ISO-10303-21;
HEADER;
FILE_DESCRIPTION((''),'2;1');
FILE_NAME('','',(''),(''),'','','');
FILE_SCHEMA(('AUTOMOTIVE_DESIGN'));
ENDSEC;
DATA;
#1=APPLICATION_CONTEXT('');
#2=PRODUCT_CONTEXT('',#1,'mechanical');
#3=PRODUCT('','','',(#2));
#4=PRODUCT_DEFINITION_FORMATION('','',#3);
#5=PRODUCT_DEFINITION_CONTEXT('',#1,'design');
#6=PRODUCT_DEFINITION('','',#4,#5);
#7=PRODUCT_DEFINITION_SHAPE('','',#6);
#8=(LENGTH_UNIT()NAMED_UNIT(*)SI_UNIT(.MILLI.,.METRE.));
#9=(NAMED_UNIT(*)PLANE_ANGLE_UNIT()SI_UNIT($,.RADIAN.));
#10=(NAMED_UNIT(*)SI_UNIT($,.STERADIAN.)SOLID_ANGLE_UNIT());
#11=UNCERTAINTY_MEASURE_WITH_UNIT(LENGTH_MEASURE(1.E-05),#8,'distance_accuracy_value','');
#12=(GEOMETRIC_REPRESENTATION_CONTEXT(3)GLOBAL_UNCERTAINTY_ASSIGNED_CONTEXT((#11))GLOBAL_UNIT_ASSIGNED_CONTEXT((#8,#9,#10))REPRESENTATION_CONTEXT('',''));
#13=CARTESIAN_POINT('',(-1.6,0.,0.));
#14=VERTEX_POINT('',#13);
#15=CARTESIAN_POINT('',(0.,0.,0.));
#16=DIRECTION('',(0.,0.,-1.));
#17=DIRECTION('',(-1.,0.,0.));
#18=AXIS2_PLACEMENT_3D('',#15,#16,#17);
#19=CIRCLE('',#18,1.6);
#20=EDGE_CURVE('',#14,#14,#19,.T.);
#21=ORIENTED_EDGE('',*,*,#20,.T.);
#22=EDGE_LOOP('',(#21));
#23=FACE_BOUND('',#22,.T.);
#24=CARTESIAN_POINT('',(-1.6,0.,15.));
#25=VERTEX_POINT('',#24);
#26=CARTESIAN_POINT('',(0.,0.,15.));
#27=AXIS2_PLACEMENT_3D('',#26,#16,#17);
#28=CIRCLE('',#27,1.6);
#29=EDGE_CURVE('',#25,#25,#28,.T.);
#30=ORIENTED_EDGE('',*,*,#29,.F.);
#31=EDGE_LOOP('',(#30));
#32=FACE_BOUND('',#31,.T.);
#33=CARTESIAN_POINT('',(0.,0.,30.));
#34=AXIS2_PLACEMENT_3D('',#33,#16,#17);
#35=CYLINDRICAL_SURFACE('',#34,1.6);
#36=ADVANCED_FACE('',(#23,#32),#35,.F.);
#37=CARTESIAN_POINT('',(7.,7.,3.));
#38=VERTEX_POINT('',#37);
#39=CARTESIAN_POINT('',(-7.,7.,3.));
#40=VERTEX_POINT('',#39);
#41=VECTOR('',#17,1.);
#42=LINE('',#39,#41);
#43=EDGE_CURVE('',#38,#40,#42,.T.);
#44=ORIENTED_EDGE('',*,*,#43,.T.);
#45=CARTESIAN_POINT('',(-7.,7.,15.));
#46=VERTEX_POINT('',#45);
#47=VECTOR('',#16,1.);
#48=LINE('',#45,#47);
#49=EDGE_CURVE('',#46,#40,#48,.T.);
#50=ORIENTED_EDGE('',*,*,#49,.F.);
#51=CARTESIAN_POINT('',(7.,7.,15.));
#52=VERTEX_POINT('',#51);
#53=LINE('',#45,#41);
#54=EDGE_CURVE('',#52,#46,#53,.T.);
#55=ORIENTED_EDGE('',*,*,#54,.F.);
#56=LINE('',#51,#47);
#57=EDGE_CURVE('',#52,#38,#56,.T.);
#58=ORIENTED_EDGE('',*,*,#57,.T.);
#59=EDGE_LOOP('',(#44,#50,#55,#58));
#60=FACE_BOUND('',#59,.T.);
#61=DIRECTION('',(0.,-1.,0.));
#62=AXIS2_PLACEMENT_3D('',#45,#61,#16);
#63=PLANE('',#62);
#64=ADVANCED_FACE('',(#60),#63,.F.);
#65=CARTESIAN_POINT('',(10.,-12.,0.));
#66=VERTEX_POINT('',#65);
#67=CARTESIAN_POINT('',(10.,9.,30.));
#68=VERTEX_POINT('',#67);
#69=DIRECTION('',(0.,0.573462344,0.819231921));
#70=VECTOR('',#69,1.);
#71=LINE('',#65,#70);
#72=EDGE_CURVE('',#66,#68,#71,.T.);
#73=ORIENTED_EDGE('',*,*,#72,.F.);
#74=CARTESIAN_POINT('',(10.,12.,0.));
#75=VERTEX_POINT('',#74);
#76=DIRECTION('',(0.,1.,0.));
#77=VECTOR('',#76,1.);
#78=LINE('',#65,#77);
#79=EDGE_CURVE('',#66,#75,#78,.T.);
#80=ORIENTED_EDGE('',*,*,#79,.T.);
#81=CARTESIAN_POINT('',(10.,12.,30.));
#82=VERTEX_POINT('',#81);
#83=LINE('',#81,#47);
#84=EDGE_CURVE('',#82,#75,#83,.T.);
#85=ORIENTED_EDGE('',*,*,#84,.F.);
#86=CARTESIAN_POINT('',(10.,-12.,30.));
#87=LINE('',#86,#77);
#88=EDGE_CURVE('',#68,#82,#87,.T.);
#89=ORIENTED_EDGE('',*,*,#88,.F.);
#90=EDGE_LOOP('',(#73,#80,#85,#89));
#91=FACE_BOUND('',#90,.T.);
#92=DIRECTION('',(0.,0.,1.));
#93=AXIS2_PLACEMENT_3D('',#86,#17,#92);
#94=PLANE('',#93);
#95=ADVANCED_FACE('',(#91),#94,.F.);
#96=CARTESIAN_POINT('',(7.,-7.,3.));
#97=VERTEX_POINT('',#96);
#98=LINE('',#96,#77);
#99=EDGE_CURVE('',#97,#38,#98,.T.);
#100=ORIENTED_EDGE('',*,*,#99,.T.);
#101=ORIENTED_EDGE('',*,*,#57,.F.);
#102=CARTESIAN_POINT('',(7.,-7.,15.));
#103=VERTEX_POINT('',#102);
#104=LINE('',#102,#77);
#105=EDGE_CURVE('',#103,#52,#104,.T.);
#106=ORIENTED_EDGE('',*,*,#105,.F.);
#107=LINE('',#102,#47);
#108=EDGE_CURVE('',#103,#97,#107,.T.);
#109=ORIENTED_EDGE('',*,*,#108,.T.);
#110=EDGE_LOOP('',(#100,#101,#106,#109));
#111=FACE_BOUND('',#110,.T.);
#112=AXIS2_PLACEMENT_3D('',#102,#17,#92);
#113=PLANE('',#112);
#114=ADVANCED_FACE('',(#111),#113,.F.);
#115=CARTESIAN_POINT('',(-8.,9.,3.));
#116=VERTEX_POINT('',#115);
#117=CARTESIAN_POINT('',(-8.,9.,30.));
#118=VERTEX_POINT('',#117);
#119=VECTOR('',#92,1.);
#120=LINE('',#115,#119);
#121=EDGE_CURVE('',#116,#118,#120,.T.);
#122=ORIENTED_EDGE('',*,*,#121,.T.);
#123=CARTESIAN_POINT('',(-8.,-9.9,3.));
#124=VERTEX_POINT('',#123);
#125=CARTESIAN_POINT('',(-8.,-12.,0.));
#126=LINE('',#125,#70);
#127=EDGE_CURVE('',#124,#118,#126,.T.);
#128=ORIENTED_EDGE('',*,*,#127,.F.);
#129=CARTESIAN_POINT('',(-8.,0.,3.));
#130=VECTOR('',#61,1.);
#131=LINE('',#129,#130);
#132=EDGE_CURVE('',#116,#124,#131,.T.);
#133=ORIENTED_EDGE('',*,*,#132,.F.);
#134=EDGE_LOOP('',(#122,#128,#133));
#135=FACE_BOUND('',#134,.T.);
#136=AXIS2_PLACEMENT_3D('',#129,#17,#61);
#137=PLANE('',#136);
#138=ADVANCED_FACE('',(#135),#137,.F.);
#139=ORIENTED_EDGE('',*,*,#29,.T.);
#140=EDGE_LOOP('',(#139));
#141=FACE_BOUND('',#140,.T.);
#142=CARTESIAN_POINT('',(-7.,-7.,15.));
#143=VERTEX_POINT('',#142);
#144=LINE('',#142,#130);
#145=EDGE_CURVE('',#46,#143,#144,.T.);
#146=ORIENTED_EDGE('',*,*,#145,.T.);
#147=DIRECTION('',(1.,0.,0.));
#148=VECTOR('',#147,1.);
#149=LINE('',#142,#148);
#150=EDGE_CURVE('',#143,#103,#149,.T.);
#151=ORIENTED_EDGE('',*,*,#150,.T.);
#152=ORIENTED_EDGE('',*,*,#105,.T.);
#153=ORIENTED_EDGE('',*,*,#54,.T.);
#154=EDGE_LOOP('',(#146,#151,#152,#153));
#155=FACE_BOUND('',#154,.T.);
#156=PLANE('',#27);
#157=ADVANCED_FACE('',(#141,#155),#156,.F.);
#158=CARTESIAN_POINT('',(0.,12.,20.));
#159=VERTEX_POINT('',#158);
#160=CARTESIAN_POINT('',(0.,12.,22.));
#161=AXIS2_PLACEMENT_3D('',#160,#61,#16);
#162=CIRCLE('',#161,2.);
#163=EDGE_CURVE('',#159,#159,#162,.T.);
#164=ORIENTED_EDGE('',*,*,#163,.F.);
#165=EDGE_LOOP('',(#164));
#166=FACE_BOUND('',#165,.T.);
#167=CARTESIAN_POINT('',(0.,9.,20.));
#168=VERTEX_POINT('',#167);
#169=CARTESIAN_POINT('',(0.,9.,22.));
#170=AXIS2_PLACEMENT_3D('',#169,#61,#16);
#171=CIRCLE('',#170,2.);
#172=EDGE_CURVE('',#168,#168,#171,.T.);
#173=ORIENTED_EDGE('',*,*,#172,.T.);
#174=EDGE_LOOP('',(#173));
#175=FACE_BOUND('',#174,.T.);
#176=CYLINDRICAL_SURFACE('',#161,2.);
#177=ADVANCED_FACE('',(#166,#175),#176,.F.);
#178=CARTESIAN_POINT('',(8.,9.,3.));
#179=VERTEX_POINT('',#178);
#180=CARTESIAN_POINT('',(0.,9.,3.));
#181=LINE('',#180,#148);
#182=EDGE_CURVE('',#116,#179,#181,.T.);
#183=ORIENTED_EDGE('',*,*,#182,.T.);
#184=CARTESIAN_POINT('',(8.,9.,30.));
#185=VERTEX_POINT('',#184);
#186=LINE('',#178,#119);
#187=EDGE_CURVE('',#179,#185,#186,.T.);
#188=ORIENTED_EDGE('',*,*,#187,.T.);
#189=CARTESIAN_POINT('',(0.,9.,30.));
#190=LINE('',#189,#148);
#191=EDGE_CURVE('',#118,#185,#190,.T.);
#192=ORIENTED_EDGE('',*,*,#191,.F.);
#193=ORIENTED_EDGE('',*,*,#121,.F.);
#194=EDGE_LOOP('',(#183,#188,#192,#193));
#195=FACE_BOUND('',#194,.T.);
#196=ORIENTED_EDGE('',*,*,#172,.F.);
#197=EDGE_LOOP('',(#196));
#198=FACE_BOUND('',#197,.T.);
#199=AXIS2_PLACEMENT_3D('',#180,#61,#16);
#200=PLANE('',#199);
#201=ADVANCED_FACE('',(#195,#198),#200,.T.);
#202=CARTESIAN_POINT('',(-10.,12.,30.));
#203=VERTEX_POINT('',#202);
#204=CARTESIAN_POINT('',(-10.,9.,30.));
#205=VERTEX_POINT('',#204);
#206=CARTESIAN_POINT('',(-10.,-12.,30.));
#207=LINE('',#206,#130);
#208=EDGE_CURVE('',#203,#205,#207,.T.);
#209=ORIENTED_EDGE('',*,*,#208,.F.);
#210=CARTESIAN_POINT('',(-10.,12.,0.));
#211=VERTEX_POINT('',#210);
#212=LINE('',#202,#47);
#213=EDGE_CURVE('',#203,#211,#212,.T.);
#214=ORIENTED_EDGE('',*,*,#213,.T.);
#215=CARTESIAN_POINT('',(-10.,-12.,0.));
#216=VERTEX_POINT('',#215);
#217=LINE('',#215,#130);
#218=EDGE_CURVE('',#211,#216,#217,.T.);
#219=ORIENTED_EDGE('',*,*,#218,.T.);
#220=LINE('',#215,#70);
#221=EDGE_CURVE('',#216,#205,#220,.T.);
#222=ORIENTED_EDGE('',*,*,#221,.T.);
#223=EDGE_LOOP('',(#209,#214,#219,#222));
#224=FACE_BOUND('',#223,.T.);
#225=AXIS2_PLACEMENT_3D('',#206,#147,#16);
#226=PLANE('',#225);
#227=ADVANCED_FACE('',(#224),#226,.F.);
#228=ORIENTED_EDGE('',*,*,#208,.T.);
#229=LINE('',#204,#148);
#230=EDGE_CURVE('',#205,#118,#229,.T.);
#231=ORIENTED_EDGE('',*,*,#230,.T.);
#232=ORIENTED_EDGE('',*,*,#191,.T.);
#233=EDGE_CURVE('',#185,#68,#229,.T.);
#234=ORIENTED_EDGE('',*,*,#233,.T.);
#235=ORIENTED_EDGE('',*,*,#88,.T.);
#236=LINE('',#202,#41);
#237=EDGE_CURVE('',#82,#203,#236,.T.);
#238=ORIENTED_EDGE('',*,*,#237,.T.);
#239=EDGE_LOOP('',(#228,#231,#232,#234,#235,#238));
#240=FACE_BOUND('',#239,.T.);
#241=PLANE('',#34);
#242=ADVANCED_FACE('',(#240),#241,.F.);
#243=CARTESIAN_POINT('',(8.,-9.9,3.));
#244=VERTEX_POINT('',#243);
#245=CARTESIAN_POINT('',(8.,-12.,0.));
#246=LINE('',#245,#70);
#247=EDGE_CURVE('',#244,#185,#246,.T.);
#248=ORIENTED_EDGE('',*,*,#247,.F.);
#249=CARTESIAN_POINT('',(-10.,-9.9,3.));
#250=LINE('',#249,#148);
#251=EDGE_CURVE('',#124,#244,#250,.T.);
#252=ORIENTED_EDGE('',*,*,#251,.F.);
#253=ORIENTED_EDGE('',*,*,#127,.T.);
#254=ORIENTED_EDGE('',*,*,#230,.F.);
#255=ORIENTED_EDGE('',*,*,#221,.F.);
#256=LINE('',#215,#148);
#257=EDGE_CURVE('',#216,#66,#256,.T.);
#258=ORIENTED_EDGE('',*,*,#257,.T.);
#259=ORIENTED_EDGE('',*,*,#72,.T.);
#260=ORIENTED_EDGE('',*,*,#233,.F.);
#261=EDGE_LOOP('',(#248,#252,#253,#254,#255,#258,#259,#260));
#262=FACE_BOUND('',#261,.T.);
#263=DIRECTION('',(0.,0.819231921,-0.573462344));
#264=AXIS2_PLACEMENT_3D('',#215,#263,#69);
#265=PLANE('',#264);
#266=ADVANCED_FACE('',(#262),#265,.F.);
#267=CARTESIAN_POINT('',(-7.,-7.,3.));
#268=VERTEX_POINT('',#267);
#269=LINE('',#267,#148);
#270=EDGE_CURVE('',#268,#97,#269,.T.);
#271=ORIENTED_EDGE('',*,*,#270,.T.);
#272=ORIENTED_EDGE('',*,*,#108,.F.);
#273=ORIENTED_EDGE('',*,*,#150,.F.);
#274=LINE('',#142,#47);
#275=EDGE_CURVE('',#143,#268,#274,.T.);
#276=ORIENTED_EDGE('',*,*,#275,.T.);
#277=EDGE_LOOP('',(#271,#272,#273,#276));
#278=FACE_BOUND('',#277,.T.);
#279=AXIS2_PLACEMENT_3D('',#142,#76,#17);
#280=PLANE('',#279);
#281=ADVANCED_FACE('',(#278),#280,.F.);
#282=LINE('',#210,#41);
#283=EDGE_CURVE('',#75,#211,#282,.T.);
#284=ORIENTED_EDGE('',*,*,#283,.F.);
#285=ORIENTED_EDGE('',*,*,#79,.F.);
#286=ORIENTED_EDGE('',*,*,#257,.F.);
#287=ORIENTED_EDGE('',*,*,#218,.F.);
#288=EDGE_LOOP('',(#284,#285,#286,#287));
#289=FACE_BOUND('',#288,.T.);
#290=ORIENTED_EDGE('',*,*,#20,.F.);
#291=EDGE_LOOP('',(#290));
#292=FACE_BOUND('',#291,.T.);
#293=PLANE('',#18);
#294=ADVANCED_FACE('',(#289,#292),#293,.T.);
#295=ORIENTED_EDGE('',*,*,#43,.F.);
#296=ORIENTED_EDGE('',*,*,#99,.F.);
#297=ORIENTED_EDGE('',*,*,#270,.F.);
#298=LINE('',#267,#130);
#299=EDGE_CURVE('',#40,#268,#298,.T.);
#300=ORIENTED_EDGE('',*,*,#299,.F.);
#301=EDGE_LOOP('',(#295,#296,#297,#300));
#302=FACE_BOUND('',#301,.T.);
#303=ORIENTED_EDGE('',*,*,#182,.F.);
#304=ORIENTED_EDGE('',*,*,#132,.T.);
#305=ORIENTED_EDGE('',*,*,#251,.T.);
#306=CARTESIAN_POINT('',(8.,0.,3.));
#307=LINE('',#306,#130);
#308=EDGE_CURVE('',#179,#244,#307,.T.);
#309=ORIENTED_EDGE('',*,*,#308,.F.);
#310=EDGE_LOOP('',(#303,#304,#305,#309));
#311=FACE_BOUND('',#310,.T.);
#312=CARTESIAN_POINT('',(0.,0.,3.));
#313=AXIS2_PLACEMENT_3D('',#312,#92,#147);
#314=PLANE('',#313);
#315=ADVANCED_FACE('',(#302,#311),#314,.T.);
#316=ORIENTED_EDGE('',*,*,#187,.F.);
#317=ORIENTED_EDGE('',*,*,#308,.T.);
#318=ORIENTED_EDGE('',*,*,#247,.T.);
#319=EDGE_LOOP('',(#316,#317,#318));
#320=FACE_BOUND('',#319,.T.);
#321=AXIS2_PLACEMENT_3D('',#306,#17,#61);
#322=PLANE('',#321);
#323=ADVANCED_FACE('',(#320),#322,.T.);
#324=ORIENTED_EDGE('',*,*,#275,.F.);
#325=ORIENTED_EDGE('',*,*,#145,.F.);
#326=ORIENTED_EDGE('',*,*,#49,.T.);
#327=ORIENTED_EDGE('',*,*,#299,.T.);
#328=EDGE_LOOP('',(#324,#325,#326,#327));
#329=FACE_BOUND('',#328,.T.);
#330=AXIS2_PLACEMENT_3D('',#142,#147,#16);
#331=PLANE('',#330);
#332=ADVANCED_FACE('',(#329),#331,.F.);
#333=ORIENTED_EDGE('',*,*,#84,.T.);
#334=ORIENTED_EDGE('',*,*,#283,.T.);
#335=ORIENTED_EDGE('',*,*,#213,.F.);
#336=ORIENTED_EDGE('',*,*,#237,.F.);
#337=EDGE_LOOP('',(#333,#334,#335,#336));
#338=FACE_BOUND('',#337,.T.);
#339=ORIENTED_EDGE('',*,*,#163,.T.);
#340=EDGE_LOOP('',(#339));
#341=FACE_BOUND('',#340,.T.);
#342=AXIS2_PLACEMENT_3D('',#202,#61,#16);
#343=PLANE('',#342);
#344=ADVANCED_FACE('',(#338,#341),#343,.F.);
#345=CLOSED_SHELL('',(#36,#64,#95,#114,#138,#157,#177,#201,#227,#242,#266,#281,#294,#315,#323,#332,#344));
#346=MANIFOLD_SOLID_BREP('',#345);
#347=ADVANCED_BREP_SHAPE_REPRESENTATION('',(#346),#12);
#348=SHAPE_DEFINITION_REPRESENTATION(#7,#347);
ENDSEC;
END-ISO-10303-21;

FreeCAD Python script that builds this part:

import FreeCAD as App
import Part
import Sketcher

doc = App.newDocument("Part")
body = doc.addObject("PartDesign::Body", "Body")

# Sketch on XY plane
sketch1 = doc.addObject("Sketcher::SketchObject", "Sketch")
body.addObject(sketch1)
sketch1.AttachmentSupport = (doc.XY_Plane, [""])
sketch1.MapMode = "FlatFace"
sketch1.addGeometry([
    Part.LineSegment(App.Vector(-10, 12, 0), App.Vector(-10, -12, 0)),
    Part.LineSegment(App.Vector(-10, -12, 0), App.Vector(10, -12, 0)),
    Part.LineSegment(App.Vector(10, -12, 0), App.Vector(10, 12, 0)),
    Part.LineSegment(App.Vector(10, 12, 0), App.Vector(-10, 12, 0)),
], False)
sketch1.addConstraint([
    Sketcher.Constraint("Coincident", 0, 2, 1, 1),
    Sketcher.Constraint("Coincident", 1, 2, 2, 1),
    Sketcher.Constraint("Coincident", 2, 2, 3, 1),
    Sketcher.Constraint("Coincident", 3, 2, 0, 1),
    Sketcher.Constraint("Vertical", 0),
    Sketcher.Constraint("Horizontal", 1),
    Sketcher.Constraint("Vertical", 2),
    Sketcher.Constraint("Horizontal", 3),
    Sketcher.Constraint("Symmetric", 0, 2, 2, 2, -1, 1),
    Sketcher.Constraint("DistanceX", 1, 1, 1, 2, 20.0),
    Sketcher.Constraint("DistanceY", 0, 2, 0, 1, 24.0),
])
pad1 = doc.addObject("PartDesign::Pad", "Pad")
body.addObject(pad1)
pad1.Profile = sketch1
pad1.Length = 30

# Sketch on YZ plane
sketch2 = doc.addObject("Sketcher::SketchObject", "Sketch001")
body.addObject(sketch2)
sketch2.AttachmentSupport = (doc.YZ_Plane, [""])
sketch2.MapMode = "FlatFace"
sketch2.AttachmentOffset = App.Placement(App.Vector(0, 0, 10), App.Rotation())
sketch2.addGeometry([
    Part.LineSegment(App.Vector(-12, 0, 0), App.Vector(9, 30, 0)),
    Part.LineSegment(App.Vector(9, 30, 0), App.Vector(-12, 30, 0)),
    Part.LineSegment(App.Vector(-12, 30, 0), App.Vector(-12, 0, 0)),
], False)
sketch2.addConstraint([
    Sketcher.Constraint("Coincident", 0, 2, 1, 1),
    Sketcher.Constraint("Coincident", 1, 2, 2, 1),
    Sketcher.Constraint("Coincident", 2, 2, 0, 1),
    Sketcher.Constraint("Horizontal", 1),
    Sketcher.Constraint("Vertical", 2),
    Sketcher.Constraint("PointOnObject", 2, 2, -1),
    Sketcher.Constraint("DistanceX", 1, 2, 1, 1, 21.0),
    Sketcher.Constraint("DistanceY", 2, 2, 2, 1, 30.0),
    Sketcher.Constraint("DistanceX", -1, 1, 0, 2, 9.0),
])
pocket1 = doc.addObject("PartDesign::Pocket", "Pocket")
body.addObject(pocket1)
pocket1.Profile = sketch2
pocket1.Type = "ThroughAll"

# Sketch on XY plane
sketch3 = doc.addObject("Sketcher::SketchObject", "Sketch002")
body.addObject(sketch3)
sketch3.AttachmentSupport = (doc.XY_Plane, [""])
sketch3.MapMode = "FlatFace"
sketch3.AttachmentOffset = App.Placement(App.Vector(0, 0, 30), App.Rotation())
sketch3.addGeometry([
    Part.LineSegment(App.Vector(-8, 9, 0), App.Vector(-8, -10, 0)),
    Part.LineSegment(App.Vector(-8, -10, 0), App.Vector(8, -10, 0)),
    Part.LineSegment(App.Vector(8, -10, 0), App.Vector(8, 9, 0)),
    Part.LineSegment(App.Vector(8, 9, 0), App.Vector(-8, 9, 0)),
], False)
sketch3.addConstraint([
    Sketcher.Constraint("Coincident", 0, 2, 1, 1),
    Sketcher.Constraint("Coincident", 1, 2, 2, 1),
    Sketcher.Constraint("Coincident", 2, 2, 3, 1),
    Sketcher.Constraint("Coincident", 3, 2, 0, 1),
    Sketcher.Constraint("Vertical", 0),
    Sketcher.Constraint("Horizontal", 1),
    Sketcher.Constraint("Vertical", 2),
    Sketcher.Constraint("Horizontal", 3),
    Sketcher.Constraint("DistanceX", 1, 1, 1, 2, 16.0),
    Sketcher.Constraint("DistanceY", 0, 2, 0, 1, 19.0),
    Sketcher.Constraint("DistanceX", 0, 2, -1, 1, 8.0),
    Sketcher.Constraint("DistanceY", 0, 2, -1, 1, 10.0),
])
pocket2 = doc.addObject("PartDesign::Pocket", "Pocket001")
body.addObject(pocket2)
pocket2.Profile = sketch3
pocket2.Length = 27

# Sketch on XY plane
sketch4 = doc.addObject("Sketcher::SketchObject", "Sketch003")
body.addObject(sketch4)
sketch4.AttachmentSupport = (doc.XY_Plane, [""])
sketch4.MapMode = "FlatFace"
sketch4.AttachmentOffset = App.Placement(App.Vector(0, 0, 3), App.Rotation())
sketch4.addGeometry([
    Part.LineSegment(App.Vector(-7, 7, 0), App.Vector(-7, -7, 0)),
    Part.LineSegment(App.Vector(-7, -7, 0), App.Vector(7, -7, 0)),
    Part.LineSegment(App.Vector(7, -7, 0), App.Vector(7, 7, 0)),
    Part.LineSegment(App.Vector(7, 7, 0), App.Vector(-7, 7, 0)),
], False)
sketch4.addConstraint([
    Sketcher.Constraint("Coincident", 0, 2, 1, 1),
    Sketcher.Constraint("Coincident", 1, 2, 2, 1),
    Sketcher.Constraint("Coincident", 2, 2, 3, 1),
    Sketcher.Constraint("Coincident", 3, 2, 0, 1),
    Sketcher.Constraint("Vertical", 0),
    Sketcher.Constraint("Horizontal", 1),
    Sketcher.Constraint("Vertical", 2),
    Sketcher.Constraint("Horizontal", 3),
    Sketcher.Constraint("Symmetric", 0, 2, 2, 2, -1, 1),
    Sketcher.Constraint("Equal", 3, 0),
    Sketcher.Constraint("DistanceX", 1, 1, 1, 2, 14.0),
])
pad2 = doc.addObject("PartDesign::Pad", "Pad001")
body.addObject(pad2)
pad2.Profile = sketch4
pad2.Length = 12

# Sketch on XY plane
sketch5 = doc.addObject("Sketcher::SketchObject", "Sketch004")
body.addObject(sketch5)
sketch5.AttachmentSupport = (doc.XY_Plane, [""])
sketch5.MapMode = "FlatFace"
sketch5.addGeometry(Part.Circle(App.Vector(0, 0, 0), App.Vector(0, 0, 1), 1.6), False)
sketch5.addConstraint([
    Sketcher.Constraint("Coincident", 0, 3, -1, 1),
    Sketcher.Constraint("Diameter", 0, 3.2),
])
pocket3 = doc.addObject("PartDesign::Pocket", "Pocket002")
body.addObject(pocket3)
pocket3.Profile = sketch5
pocket3.Type = "ThroughAll"
pocket3.Reversed = True

# Sketch on XZ plane
sketch6 = doc.addObject("Sketcher::SketchObject", "Sketch005")
body.addObject(sketch6)
sketch6.AttachmentSupport = (doc.XZ_Plane, [""])
sketch6.MapMode = "FlatFace"
sketch6.AttachmentOffset = App.Placement(App.Vector(0, 0, -9), App.Rotation())
sketch6.addGeometry(Part.Circle(App.Vector(0, 22, 0), App.Vector(0, 0, 1), 2), False)
sketch6.addConstraint([
    Sketcher.Constraint("PointOnObject", 0, 3, -2),
    Sketcher.Constraint("Diameter", 0, 4.0),
    Sketcher.Constraint("DistanceY", -1, 1, 0, 3, 22.0),
])
pocket4 = doc.addObject("PartDesign::Pocket", "Pocket003")
body.addObject(pocket4)
pocket4.Profile = sketch6
pocket4.Type = "ThroughAll"

doc.recompute()
